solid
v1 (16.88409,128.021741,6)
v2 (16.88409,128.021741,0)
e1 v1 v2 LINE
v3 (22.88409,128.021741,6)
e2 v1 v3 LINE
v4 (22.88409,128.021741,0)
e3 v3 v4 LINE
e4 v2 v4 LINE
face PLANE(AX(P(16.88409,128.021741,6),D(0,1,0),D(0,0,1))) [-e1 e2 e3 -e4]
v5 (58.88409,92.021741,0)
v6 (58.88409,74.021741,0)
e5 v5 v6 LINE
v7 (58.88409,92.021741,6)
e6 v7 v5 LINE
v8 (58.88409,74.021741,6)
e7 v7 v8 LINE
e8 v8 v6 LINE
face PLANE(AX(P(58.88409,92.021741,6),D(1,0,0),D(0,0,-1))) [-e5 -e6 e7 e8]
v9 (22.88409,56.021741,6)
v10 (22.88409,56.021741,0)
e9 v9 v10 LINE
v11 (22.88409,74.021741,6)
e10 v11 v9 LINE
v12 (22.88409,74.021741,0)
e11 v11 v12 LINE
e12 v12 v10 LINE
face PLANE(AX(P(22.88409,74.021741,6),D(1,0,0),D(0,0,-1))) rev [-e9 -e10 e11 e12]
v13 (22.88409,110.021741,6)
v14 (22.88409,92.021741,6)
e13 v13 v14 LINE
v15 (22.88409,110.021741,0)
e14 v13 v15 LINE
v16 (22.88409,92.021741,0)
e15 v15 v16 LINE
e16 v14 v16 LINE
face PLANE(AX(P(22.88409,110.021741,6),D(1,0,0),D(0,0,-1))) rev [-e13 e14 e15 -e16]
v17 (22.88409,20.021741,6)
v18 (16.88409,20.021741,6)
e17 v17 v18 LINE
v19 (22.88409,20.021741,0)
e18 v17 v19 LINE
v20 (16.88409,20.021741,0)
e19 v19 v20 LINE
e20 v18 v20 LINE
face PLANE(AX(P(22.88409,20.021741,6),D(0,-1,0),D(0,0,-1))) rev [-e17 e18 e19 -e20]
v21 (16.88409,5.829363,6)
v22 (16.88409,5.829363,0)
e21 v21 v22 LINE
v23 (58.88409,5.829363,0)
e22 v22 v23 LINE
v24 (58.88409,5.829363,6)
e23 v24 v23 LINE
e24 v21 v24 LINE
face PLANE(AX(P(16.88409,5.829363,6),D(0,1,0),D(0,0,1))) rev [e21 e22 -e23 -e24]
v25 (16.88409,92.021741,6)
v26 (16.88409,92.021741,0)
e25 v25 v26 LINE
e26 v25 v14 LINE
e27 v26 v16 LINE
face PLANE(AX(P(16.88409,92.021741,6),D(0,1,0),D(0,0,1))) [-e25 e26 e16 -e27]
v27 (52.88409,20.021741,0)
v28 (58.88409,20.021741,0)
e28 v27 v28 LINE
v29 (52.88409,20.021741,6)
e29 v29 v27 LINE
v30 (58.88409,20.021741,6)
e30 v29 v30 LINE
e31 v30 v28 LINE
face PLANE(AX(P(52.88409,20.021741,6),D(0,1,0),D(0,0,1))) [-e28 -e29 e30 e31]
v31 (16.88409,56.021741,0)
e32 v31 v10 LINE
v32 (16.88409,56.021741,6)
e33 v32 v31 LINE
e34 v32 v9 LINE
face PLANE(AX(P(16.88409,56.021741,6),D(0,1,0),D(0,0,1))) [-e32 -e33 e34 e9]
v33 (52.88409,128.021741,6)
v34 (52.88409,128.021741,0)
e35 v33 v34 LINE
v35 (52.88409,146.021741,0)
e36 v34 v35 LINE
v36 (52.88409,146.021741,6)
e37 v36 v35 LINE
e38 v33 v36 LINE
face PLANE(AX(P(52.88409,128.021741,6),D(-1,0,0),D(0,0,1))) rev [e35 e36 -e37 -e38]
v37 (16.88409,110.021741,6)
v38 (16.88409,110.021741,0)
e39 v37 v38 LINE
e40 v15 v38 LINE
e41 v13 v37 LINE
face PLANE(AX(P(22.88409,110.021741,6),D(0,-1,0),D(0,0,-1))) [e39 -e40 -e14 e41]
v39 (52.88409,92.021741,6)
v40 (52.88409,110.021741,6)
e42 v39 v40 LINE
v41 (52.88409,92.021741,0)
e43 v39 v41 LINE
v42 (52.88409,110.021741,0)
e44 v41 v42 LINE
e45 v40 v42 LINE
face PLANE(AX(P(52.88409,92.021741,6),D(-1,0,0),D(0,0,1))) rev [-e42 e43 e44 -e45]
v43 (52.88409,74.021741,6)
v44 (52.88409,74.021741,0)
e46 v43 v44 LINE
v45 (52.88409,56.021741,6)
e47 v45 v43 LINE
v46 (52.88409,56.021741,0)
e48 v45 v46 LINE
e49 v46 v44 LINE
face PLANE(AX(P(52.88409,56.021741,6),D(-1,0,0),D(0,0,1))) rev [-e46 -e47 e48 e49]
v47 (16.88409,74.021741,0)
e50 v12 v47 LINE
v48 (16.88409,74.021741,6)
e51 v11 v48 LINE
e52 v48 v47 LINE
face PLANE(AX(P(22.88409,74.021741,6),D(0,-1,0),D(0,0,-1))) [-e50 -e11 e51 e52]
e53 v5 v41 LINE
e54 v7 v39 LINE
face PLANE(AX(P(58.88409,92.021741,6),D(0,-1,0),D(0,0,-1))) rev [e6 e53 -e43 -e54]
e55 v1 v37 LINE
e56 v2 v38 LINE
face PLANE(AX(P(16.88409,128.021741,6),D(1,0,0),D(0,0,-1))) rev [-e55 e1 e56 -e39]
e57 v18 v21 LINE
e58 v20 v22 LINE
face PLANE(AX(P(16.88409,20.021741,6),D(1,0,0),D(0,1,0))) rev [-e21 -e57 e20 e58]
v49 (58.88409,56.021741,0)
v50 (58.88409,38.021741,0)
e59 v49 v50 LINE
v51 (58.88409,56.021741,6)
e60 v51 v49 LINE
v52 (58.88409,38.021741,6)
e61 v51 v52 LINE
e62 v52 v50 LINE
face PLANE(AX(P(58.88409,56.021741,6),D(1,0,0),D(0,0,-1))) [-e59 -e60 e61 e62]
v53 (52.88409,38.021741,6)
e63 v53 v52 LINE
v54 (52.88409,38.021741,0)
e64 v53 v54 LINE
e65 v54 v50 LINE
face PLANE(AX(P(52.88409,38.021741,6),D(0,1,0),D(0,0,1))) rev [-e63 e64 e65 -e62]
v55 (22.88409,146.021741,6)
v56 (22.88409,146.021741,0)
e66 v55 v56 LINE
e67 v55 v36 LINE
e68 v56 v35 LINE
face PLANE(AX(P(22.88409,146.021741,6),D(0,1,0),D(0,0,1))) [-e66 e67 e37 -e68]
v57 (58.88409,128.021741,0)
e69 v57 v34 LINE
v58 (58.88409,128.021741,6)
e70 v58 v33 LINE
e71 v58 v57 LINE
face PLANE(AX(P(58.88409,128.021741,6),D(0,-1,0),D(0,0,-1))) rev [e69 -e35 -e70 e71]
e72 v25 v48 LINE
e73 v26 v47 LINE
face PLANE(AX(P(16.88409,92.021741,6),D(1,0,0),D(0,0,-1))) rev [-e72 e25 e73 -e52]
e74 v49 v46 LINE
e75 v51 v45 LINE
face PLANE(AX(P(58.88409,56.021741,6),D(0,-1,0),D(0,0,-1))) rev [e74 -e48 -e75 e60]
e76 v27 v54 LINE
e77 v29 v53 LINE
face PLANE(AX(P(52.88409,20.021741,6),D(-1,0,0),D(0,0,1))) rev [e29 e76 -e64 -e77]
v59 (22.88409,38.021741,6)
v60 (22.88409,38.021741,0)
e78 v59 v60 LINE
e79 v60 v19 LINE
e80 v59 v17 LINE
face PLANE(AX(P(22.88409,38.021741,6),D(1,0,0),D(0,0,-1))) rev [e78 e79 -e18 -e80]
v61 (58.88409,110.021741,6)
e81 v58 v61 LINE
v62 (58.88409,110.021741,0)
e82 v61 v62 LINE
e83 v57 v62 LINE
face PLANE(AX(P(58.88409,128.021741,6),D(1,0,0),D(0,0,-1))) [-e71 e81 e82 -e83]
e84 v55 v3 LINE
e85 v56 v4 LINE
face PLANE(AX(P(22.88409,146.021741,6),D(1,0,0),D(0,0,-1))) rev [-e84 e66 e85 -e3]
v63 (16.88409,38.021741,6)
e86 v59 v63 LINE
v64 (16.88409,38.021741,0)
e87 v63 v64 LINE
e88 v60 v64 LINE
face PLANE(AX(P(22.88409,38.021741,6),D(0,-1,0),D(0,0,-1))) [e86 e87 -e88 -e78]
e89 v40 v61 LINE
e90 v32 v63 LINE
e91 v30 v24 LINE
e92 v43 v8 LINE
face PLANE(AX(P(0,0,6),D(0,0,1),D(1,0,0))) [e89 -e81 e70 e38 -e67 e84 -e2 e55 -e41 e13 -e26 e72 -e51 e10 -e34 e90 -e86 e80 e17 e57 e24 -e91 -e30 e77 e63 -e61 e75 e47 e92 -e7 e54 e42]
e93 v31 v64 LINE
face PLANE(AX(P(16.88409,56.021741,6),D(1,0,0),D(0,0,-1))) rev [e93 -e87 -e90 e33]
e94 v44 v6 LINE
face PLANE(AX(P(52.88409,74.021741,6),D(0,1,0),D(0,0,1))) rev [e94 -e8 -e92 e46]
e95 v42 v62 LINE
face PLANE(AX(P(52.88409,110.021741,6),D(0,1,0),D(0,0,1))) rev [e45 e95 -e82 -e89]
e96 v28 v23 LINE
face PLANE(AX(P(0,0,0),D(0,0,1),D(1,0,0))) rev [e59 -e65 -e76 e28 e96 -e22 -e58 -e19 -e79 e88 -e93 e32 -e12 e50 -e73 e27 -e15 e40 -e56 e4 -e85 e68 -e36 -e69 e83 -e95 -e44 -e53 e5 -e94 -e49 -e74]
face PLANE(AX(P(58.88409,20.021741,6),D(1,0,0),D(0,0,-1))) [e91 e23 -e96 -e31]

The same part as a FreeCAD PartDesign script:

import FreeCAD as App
import Part
import Sketcher


def add_polygon(sketch, points):
    """Adds a closed chain of lines whose ends are joined by coincident constraints."""
    first, n = sketch.GeometryCount, len(points)
    for a, b in zip(points, points[1:] + points[:1]):
        sketch.addGeometry(Part.LineSegment(App.Vector(*a, 0), App.Vector(*b, 0)), False)
    for i in range(n):
        sketch.addConstraint(Sketcher.Constraint("Coincident", first + i, 2, first + (i + 1) % n, 1))

doc = App.newDocument("Part")
params = doc.addObject("Spreadsheet::Sheet", "Params")
for row, (alias, value) in enumerate([
    ("sketch1_width", "6 mm"),
    ("sketch1_width2", "42 mm"),
    ("sketch1_height", "18 mm"),
    ("pad1_length", "6 mm"),
], start=1):
    params.set(f"A{row}", alias)
    params.set(f"B{row}", "=" + value)
    params.setAlias(f"B{row}", alias)

body = doc.addObject("PartDesign::Body", "Body")

# Sketch on XY plane
sketch1 = body.newObject("Sketcher::SketchObject", "Sketch")
sketch1.AttachmentSupport = (doc.getObject("XY_Plane"), [""])
sketch1.MapMode = "FlatFace"
add_polygon(sketch1, [(23, 128), (17, 128), (17, 110), (23, 110), (23, 92), (17, 92), (17, 74), (23, 74), (23, 56), (17, 56), (17, 38), (23, 38), (23, 20), (17, 20), (17, 6), (59, 6), (59, 20), (53, 20), (53, 38), (59, 38), (59, 56), (53, 56), (53, 74), (59, 74), (59, 92), (53, 92), (53, 110), (59, 110), (59, 128), (53, 128), (53, 146), (23, 146)])  # lines 0-31
sketch1.addConstraint(Sketcher.Constraint("Horizontal", 0))
sketch1.addConstraint(Sketcher.Constraint("Vertical", 1))
sketch1.addConstraint(Sketcher.Constraint("Horizontal", 2))
sketch1.addConstraint(Sketcher.Constraint("Vertical", 3))
sketch1.addConstraint(Sketcher.Constraint("Horizontal", 4))
sketch1.addConstraint(Sketcher.Constraint("Vertical", 5))
sketch1.addConstraint(Sketcher.Constraint("Horizontal", 6))
sketch1.addConstraint(Sketcher.Constraint("Vertical", 7))
sketch1.addConstraint(Sketcher.Constraint("Horizontal", 8))
sketch1.addConstraint(Sketcher.Constraint("Vertical", 9))
sketch1.addConstraint(Sketcher.Constraint("Horizontal", 10))
sketch1.addConstraint(Sketcher.Constraint("Vertical", 11))
sketch1.addConstraint(Sketcher.Constraint("Horizontal", 12))
sketch1.addConstraint(Sketcher.Constraint("Vertical", 13))
sketch1.addConstraint(Sketcher.Constraint("Horizontal", 14))
sketch1.addConstraint(Sketcher.Constraint("Vertical", 15))
sketch1.addConstraint(Sketcher.Constraint("Horizontal", 16))
sketch1.addConstraint(Sketcher.Constraint("Vertical", 17))
sketch1.addConstraint(Sketcher.Constraint("Horizontal", 18))
sketch1.addConstraint(Sketcher.Constraint("Vertical", 19))
sketch1.addConstraint(Sketcher.Constraint("Horizontal", 20))
sketch1.addConstraint(Sketcher.Constraint("Vertical", 21))
sketch1.addConstraint(Sketcher.Constraint("Horizontal", 22))
sketch1.addConstraint(Sketcher.Constraint("Vertical", 23))
sketch1.addConstraint(Sketcher.Constraint("Horizontal", 24))
sketch1.addConstraint(Sketcher.Constraint("Vertical", 25))
sketch1.addConstraint(Sketcher.Constraint("Horizontal", 26))
sketch1.addConstraint(Sketcher.Constraint("Vertical", 27))
sketch1.addConstraint(Sketcher.Constraint("Horizontal", 28))
sketch1.addConstraint(Sketcher.Constraint("Vertical", 29))
sketch1.addConstraint(Sketcher.Constraint("Horizontal", 30))
sketch1.addConstraint(Sketcher.Constraint("Vertical", 31))
sketch1.addConstraint(Sketcher.Constraint("Horizontal", 12, 2, 15, 2))
sketch1.addConstraint(Sketcher.Constraint("Horizontal", 10, 2, 17, 2))
sketch1.addConstraint(Sketcher.Constraint("Horizontal", 8, 2, 19, 2))
sketch1.addConstraint(Sketcher.Constraint("Horizontal", 6, 2, 21, 2))
sketch1.addConstraint(Sketcher.Constraint("Horizontal", 4, 2, 23, 2))
sketch1.addConstraint(Sketcher.Constraint("Horizontal", 2, 2, 25, 2))
sketch1.addConstraint(Sketcher.Constraint("Horizontal", 0, 2, 27, 2))
sketch1.addConstraint(Sketcher.Constraint("Vertical", 1, 2, 4, 2))
sketch1.addConstraint(Sketcher.Constraint("Vertical", 3, 2, 6, 2))
sketch1.addConstraint(Sketcher.Constraint("Vertical", 5, 2, 8, 2))
sketch1.addConstraint(Sketcher.Constraint("Vertical", 7, 2, 10, 2))
sketch1.addConstraint(Sketcher.Constraint("Vertical", 9, 2, 12, 2))
sketch1.addConstraint(Sketcher.Constraint("Vertical", 15, 2, 18, 2))
sketch1.addConstraint(Sketcher.Constraint("Vertical", 17, 2, 20, 2))
sketch1.addConstraint(Sketcher.Constraint("Vertical", 19, 2, 22, 2))
sketch1.addConstraint(Sketcher.Constraint("Vertical", 21, 2, 24, 2))
sketch1.addConstraint(Sketcher.Constraint("Vertical", 23, 2, 26, 2))
sketch1.addConstraint(Sketcher.Constraint("Vertical", 25, 2, 28, 2))
sketch1.addConstraint(Sketcher.Constraint("Vertical", 11, 2, 30, 2))
sketch1.addConstraint(Sketcher.Constraint("Equal", 12, 16))
sketch1.addConstraint(Sketcher.Constraint("Equal", 1, 3))
sketch1.addConstraint(Sketcher.Constraint("Equal", 3, 5))
sketch1.addConstraint(Sketcher.Constraint("Equal", 5, 7))
sketch1.addConstraint(Sketcher.Constraint("Equal", 7, 9))
sketch1.addConstraint(Sketcher.Constraint("Equal", 9, 11))
sketch1.addConstraint(Sketcher.Constraint("Equal", 27, 29))
sketch1.addConstraint(Sketcher.Constraint("DistanceX", 0, 2, 0, 1, 6.0))
sketch1.addConstraint(Sketcher.Constraint("DistanceX", 14, 1, 14, 2, 42.0))
sketch1.addConstraint(Sketcher.Constraint("DistanceY", 1, 2, 1, 1, 18.0))
sketch1.addConstraint(Sketcher.Constraint("DistanceY", 13, 2, 13, 1, 14.192379))
sketch1.addConstraint(Sketcher.Constraint("DistanceX", -1, 1, 0, 2, 16.88409))
sketch1.addConstraint(Sketcher.Constraint("DistanceY", -1, 1, 0, 2, 128.021741))
sketch1.setExpression("Constraints[90]", "Params.sketch1_width")
sketch1.setExpression("Constraints[91]", "Params.sketch1_width2")
sketch1.setExpression("Constraints[92]", "Params.sketch1_height")
pad1 = body.newObject("PartDesign::Pad", "Pad")
pad1.Profile = sketch1
pad1.setExpression("Length", "Params.pad1_length")

doc.recompute()
